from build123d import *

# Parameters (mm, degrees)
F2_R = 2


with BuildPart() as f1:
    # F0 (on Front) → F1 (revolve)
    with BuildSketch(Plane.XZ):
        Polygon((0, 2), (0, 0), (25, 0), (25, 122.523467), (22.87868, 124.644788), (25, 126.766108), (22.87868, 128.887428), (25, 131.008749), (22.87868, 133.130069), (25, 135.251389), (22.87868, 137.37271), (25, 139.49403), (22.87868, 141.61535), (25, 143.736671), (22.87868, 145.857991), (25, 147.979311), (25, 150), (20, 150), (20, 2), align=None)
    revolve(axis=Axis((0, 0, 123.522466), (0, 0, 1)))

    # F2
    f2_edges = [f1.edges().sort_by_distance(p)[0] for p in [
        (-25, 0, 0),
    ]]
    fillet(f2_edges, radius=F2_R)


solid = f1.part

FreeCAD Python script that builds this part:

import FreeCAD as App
import Part
import Sketcher
from FreeCAD import Vector


def edges_at(feature, points):
    """Names of the edges that pass closest to the given points."""
    edges = feature.Shape.Edges
    near = lambda p: min(range(len(edges)), key=lambda i: edges[i].distToShape(Part.Vertex(*p))[0])
    return sorted({f"Edge{near(p) + 1}" for p in points})

doc = App.newDocument("Part")
params = doc.addObject("Spreadsheet::Sheet", "Params")
for row, (alias, value) in enumerate([
    ("sketch1_width", "25 mm"),
    ("sketch1_width2", "5 mm"),
    ("sketch1_height", "2 mm"),
    ("sketch1_height2", "148 mm"),
    ("sketch1_length", "3 mm"),
    ("revolution_angle", "360 deg"),
    ("fillet_radius", "2 mm"),
], start=1):
    params.set(f"A{row}", alias)
    params.set(f"B{row}", "=" + value)
    params.setAlias(f"B{row}", alias)

body = doc.addObject("PartDesign::Body", "Body")

# Sketch on XZ plane
sketch1 = doc.addObject("Sketcher::SketchObject", "Sketch")
body.addObject(sketch1)
sketch1.AttachmentSupport = (doc.XZ_Plane, [""])
sketch1.MapMode = "FlatFace"
sketch1.addGeometry([
    Part.LineSegment(Vector(0, 2, 0), Vector(0, 0, 0)),  # 0
    Part.LineSegment(Vector(0, 0, 0), Vector(25, 0, 0)),  # 1
    Part.LineSegment(Vector(25, 0, 0), Vector(25, 122.5, 0)),  # 2
    Part.LineSegment(Vector(25, 122.5, 0), Vector(22.9, 124.6, 0)),  # 3
    Part.LineSegment(Vector(22.9, 124.6, 0), Vector(25, 126.8, 0)),  # 4
    Part.LineSegment(Vector(25, 126.8, 0), Vector(22.9, 128.9, 0)),  # 5
    Part.LineSegment(Vector(22.9, 128.9, 0), Vector(25, 131, 0)),  # 6
    Part.LineSegment(Vector(25, 131, 0), Vector(22.9, 133.1, 0)),  # 7
    Part.LineSegment(Vector(22.9, 133.1, 0), Vector(25, 135.3, 0)),  # 8
    Part.LineSegment(Vector(25, 135.3, 0), Vector(22.9, 137.4, 0)),  # 9
    Part.LineSegment(Vector(22.9, 137.4, 0), Vector(25, 139.5, 0)),  # 10
    Part.LineSegment(Vector(25, 139.5, 0), Vector(22.9, 141.6, 0)),  # 11
    Part.LineSegment(Vector(22.9, 141.6, 0), Vector(25, 143.7, 0)),  # 12
    Part.LineSegment(Vector(25, 143.7, 0), Vector(22.9, 145.9, 0)),  # 13
    Part.LineSegment(Vector(22.9, 145.9, 0), Vector(25, 148, 0)),  # 14
    Part.LineSegment(Vector(25, 148, 0), Vector(25, 150, 0)),  # 15
    Part.LineSegment(Vector(25, 150, 0), Vector(20, 150, 0)),  # 16
    Part.LineSegment(Vector(20, 150, 0), Vector(20, 2, 0)),  # 17
    Part.LineSegment(Vector(20, 2, 0), Vector(0, 2, 0)),  # 18
], False)
sketch1.addConstraint([
    Sketcher.Constraint("Coincident", 0, 2, 1, 1),
    Sketcher.Constraint("Coincident", 1, 2, 2, 1),
    Sketcher.Constraint("Coincident", 2, 2, 3, 1),
    Sketcher.Constraint("Coincident", 3, 2, 4, 1),
    Sketcher.Constraint("Coincident", 4, 2, 5, 1),
    Sketcher.Constraint("Coincident", 5, 2, 6, 1),
    Sketcher.Constraint("Coincident", 6, 2, 7, 1),
    Sketcher.Constraint("Coincident", 7, 2, 8, 1),
    Sketcher.Constraint("Coincident", 8, 2, 9, 1),
    Sketcher.Constraint("Coincident", 9, 2, 10, 1),
    Sketcher.Constraint("Coincident", 10, 2, 11, 1),
    Sketcher.Constraint("Coincident", 11, 2, 12, 1),
    Sketcher.Constraint("Coincident", 12, 2, 13, 1),
    Sketcher.Constraint("Coincident", 13, 2, 14, 1),
    Sketcher.Constraint("Coincident", 14, 2, 15, 1),
    Sketcher.Constraint("Coincident", 15, 2, 16, 1),
    Sketcher.Constraint("Coincident", 16, 2, 17, 1),
    Sketcher.Constraint("Coincident", 17, 2, 18, 1),
    Sketcher.Constraint("Coincident", 18, 2, 0, 1),
    Sketcher.Constraint("Vertical", 0),
    Sketcher.Constraint("Horizontal", 1),
    Sketcher.Constraint("Vertical", 2),
    Sketcher.Constraint("Vertical", 15),
    Sketcher.Constraint("Horizontal", 16),
    Sketcher.Constraint("Vertical", 17),
    Sketcher.Constraint("Horizontal", 18),
    Sketcher.Constraint("Coincident", 0, 2, -1, 1),
    Sketcher.Constraint("Perpendicular", 3, 4),
    Sketcher.Constraint("Perpendicular", 4, 5),
    Sketcher.Constraint("Perpendicular", 5, 6),
    Sketcher.Constraint("Perpendicular", 6, 7),
    Sketcher.Constraint("Perpendicular", 7, 8),
    Sketcher.Constraint("Perpendicular", 8, 9),
    Sketcher.Constraint("Perpendicular", 9, 10),
    Sketcher.Constraint("Perpendicular", 10, 11),
    Sketcher.Constraint("Perpendicular", 11, 12),
    Sketcher.Constraint("Perpendicular", 12, 13),
    Sketcher.Constraint("Perpendicular", 13, 14),
    Sketcher.Constraint("Vertical", 2, 2, 4, 2),
    Sketcher.Constraint("Vertical", 3, 2, 5, 2),
    Sketcher.Constraint("Vertical", 4, 2, 6, 2),
    Sketcher.Constraint("Vertical", 5, 2, 7, 2),
    Sketcher.Constraint("Vertical", 6, 2, 8, 2),
    Sketcher.Constraint("Vertical", 7, 2, 9, 2),
    Sketcher.Constraint("Vertical", 8, 2, 10, 2),
    Sketcher.Constraint("Vertical", 9, 2, 11, 2),
    Sketcher.Constraint("Vertical", 10, 2, 12, 2),
    Sketcher.Constraint("Vertical", 11, 2, 13, 2),
    Sketcher.Constraint("Vertical", 12, 2, 14, 2),
    Sketcher.Constraint("Equal", 3, 4),
    Sketcher.Constraint("DistanceX", 1, 1, 1, 2, 25.0),
    Sketcher.Constraint("DistanceX", 16, 2, 16, 1, 5.0),
    Sketcher.Constraint("DistanceY", 0, 2, 0, 1, 2.0),
    Sketcher.Constraint("DistanceY", 17, 2, 17, 1, 148.0),
    Sketcher.Constraint("Distance", 3, 3.0),
    Sketcher.Constraint("DistanceY", 15, 1, 15, 2, 2.020689),
])
sketch1.setExpression("Constraints[50]", "Params.sketch1_width")
sketch1.setExpression("Constraints[51]", "Params.sketch1_width2")
sketch1.setExpression("Constraints[52]", "Params.sketch1_height")
sketch1.setExpression("Constraints[53]", "Params.sketch1_height2")
sketch1.setExpression("Constraints[54]", "Params.sketch1_length")
revolution = doc.addObject("PartDesign::Revolution", "Revolution")
body.addObject(revolution)
revolution.Profile = sketch1
revolution.ReferenceAxis = (sketch1, ["V_Axis"])
revolution.setExpression("Angle", "Params.revolution_angle")
doc.recompute()

fillet = doc.addObject("PartDesign::Fillet", "Fillet")
body.addObject(fillet)
fillet.Base = (revolution, edges_at(revolution, [(-25, 0, 0)]))
fillet.setExpression("Radius", "Params.fillet_radius")

doc.recompute()
